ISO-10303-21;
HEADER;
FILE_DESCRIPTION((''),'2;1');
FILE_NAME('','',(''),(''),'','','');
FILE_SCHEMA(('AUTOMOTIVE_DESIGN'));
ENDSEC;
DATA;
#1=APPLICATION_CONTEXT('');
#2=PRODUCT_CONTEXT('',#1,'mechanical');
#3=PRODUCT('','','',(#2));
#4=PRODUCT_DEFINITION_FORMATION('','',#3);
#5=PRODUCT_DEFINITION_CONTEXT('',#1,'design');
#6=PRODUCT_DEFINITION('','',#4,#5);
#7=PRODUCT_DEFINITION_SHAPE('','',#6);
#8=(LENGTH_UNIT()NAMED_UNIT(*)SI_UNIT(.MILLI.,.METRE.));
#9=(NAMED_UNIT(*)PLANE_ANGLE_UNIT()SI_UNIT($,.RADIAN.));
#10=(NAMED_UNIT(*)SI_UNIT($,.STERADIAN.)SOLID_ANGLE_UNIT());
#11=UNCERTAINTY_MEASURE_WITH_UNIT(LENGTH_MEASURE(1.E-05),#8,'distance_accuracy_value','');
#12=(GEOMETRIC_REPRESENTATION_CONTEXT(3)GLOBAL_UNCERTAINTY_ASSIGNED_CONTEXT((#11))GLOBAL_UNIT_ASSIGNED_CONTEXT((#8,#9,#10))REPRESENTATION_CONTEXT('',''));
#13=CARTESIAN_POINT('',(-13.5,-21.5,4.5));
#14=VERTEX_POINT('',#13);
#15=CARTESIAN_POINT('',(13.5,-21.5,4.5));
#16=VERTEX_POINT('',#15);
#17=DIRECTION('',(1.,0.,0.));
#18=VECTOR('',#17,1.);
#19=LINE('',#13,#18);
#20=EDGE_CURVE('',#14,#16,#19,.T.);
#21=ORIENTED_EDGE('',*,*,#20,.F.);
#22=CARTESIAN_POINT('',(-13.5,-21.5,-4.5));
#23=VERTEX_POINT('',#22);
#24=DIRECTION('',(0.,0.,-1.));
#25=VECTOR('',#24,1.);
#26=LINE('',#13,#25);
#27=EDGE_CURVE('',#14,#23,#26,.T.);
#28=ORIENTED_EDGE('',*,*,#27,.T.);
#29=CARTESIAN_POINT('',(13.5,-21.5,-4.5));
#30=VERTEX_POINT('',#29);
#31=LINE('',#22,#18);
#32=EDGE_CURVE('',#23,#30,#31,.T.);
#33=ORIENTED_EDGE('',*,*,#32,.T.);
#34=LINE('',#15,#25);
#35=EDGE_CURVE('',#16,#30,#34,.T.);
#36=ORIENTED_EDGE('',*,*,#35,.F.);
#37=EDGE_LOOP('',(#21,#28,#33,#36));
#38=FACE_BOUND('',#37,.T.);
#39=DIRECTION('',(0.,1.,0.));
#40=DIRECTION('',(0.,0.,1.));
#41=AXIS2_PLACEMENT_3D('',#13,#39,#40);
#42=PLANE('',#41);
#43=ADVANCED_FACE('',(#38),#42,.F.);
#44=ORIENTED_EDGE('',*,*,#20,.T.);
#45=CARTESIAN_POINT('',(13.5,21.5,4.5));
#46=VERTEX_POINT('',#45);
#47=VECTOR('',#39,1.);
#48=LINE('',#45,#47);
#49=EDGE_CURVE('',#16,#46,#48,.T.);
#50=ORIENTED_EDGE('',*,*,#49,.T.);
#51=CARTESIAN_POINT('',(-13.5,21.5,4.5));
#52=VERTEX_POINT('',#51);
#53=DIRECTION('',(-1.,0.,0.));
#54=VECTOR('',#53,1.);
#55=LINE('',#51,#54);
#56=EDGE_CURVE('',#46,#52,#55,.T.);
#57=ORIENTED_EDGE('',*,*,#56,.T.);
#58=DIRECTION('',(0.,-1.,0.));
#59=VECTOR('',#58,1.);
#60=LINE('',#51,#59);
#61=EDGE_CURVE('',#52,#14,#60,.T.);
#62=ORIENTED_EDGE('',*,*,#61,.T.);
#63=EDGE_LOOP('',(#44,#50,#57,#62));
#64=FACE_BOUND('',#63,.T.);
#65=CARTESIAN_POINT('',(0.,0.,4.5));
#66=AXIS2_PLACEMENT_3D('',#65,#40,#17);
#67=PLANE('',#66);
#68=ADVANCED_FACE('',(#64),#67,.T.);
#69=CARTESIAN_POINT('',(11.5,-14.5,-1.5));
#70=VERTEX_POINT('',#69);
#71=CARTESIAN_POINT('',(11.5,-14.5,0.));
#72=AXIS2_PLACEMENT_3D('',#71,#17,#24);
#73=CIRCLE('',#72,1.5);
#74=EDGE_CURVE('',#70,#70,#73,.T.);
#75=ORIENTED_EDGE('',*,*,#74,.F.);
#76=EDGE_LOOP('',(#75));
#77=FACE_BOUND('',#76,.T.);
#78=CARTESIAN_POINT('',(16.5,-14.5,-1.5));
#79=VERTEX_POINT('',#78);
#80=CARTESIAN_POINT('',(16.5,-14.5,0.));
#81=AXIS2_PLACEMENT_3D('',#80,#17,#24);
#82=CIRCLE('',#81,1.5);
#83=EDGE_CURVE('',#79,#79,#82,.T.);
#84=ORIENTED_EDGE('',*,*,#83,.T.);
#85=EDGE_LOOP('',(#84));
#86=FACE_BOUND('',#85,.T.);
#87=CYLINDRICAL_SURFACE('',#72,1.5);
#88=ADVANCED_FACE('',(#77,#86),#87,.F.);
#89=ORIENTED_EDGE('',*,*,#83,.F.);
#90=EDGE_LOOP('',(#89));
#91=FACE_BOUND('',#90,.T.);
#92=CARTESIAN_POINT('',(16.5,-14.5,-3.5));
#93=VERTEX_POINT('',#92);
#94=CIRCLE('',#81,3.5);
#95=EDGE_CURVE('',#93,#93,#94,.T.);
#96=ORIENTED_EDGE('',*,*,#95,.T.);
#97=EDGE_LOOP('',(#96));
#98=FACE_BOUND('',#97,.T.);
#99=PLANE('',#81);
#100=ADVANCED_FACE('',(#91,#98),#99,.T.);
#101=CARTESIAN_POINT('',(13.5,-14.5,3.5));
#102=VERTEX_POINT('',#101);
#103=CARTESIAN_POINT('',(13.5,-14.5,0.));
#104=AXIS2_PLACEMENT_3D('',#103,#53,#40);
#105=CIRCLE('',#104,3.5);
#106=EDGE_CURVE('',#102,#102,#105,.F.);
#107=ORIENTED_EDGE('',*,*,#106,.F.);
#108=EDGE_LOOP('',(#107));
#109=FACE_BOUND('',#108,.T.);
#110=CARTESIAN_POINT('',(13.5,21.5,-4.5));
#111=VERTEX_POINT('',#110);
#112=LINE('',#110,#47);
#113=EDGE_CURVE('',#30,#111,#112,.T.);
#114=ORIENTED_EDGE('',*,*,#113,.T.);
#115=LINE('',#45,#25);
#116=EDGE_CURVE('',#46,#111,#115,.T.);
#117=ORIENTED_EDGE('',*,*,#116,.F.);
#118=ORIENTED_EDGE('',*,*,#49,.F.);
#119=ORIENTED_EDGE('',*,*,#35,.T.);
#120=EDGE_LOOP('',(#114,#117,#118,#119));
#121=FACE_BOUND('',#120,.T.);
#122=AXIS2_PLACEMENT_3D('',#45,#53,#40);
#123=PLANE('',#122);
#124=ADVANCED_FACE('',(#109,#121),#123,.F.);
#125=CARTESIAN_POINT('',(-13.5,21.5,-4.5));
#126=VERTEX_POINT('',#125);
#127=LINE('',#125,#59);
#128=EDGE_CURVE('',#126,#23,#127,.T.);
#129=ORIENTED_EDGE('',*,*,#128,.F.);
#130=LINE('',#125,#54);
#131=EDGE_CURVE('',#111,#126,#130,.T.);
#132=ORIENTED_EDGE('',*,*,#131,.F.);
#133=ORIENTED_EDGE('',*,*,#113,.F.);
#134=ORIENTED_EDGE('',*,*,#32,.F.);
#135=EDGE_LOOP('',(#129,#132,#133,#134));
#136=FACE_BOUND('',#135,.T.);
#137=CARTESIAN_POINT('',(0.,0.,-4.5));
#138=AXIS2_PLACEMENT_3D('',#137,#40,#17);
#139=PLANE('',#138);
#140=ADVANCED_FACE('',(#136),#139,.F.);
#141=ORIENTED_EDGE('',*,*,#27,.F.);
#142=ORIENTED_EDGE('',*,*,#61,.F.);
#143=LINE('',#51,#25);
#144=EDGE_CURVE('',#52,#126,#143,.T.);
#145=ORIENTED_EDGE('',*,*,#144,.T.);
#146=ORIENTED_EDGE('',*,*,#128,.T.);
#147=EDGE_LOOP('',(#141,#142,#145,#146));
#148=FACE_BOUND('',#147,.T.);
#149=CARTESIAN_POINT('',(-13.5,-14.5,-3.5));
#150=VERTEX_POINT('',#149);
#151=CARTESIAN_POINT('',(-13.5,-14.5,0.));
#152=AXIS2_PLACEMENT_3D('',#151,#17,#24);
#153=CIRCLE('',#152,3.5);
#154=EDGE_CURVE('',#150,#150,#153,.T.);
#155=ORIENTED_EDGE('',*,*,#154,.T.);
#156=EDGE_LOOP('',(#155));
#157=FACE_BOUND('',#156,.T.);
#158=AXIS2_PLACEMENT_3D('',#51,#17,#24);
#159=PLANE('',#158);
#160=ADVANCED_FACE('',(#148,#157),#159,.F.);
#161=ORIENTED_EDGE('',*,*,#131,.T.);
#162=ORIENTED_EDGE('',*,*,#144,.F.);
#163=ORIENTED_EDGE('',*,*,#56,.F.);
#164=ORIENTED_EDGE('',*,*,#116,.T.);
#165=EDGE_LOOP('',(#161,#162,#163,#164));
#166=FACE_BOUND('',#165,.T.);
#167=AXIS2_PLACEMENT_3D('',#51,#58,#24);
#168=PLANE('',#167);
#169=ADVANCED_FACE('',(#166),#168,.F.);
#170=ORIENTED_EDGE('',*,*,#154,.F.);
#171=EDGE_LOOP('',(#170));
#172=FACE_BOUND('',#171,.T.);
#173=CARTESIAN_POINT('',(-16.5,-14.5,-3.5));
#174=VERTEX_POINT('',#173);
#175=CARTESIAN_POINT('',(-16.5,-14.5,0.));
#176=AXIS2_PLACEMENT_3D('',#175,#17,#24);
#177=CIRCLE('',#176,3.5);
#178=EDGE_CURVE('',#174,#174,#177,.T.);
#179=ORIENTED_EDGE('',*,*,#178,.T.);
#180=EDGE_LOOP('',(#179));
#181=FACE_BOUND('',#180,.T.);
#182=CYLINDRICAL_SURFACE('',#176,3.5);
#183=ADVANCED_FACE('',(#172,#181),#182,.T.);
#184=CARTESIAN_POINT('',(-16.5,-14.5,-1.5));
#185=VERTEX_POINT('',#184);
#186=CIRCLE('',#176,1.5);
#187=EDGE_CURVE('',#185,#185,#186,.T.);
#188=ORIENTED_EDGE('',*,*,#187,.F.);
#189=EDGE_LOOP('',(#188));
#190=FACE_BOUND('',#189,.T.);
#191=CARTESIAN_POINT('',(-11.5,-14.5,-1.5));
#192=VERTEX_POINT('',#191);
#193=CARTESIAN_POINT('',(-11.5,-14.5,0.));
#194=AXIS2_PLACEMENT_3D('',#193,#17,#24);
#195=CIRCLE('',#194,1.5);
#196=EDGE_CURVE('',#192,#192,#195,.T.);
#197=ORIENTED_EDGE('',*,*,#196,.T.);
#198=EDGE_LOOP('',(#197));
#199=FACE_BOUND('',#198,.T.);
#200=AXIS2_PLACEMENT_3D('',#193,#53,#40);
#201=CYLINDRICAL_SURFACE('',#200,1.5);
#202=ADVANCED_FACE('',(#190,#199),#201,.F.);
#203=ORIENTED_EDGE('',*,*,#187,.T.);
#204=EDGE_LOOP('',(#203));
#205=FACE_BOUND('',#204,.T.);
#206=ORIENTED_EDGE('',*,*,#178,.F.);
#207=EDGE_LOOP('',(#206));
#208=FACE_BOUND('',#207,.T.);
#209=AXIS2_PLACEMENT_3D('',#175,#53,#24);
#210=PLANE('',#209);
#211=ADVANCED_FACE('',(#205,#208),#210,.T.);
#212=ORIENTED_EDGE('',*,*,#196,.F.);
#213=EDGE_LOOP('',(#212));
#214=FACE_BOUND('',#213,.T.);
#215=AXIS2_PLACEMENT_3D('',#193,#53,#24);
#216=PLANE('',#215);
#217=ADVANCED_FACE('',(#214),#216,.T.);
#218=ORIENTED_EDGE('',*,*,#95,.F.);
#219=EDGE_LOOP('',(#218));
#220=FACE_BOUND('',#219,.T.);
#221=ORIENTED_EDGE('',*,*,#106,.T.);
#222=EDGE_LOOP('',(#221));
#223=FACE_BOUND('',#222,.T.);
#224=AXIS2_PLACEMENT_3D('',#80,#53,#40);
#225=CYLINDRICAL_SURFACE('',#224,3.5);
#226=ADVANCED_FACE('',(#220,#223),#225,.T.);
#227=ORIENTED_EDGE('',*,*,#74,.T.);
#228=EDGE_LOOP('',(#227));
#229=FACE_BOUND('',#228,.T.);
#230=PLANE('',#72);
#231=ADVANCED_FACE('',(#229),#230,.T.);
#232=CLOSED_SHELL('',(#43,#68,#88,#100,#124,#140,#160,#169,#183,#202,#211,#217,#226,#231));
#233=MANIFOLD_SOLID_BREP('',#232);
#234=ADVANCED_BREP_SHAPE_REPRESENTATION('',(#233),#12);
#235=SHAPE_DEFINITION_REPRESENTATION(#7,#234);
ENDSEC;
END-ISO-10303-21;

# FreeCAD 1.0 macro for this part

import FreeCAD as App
import Part
import Sketcher
Q = App.Units.Quantity

doc = App.newDocument("Part")
body = doc.addObject("PartDesign::Body", "Body")

# Sketch on XY plane
sketch1 = body.newObject("Sketcher::SketchObject", "Sketch")
sketch1.AttachmentSupport = (doc.getObject("XY_Plane"), [""])
sketch1.MapMode = "FlatFace"
sketch1.addGeometry([
    Part.LineSegment(App.Vector(-13.5, 21.5, 0), App.Vector(-13.5, -21.5, 0)),
    Part.LineSegment(App.Vector(-13.5, -21.5, 0), App.Vector(13.5, -21.5, 0)),
    Part.LineSegment(App.Vector(13.5, -21.5, 0), App.Vector(13.5, 21.5, 0)),
    Part.LineSegment(App.Vector(13.5, 21.5, 0), App.Vector(-13.5, 21.5, 0)),
], False)
sketch1.addConstraint([
    Sketcher.Constraint("Coincident", 0, 2, 1, 1),
    Sketcher.Constraint("Coincident", 1, 2, 2, 1),
    Sketcher.Constraint("Coincident", 2, 2, 3, 1),
    Sketcher.Constraint("Coincident", 3, 2, 0, 1),
    Sketcher.Constraint("Vertical", 0),
    Sketcher.Constraint("Horizontal", 1),
    Sketcher.Constraint("Vertical", 2),
    Sketcher.Constraint("Horizontal", 3),
    Sketcher.Constraint("Symmetric", 0, 2, 2, 2, -1, 1),
    Sketcher.Constraint("DistanceX", 1, 1, 1, 2, Q("27 mm")),
    Sketcher.Constraint("DistanceY", 0, 2, 0, 1, Q("43 mm")),
])
pad1 = body.newObject("PartDesign::Pad", "Pad")
pad1.Profile = sketch1
pad1.Length = 9
pad1.Midplane = True

# Sketch on YZ plane
sketch2 = body.newObject("Sketcher::SketchObject", "Sketch001")
sketch2.AttachmentSupport = (doc.getObject("YZ_Plane"), [""])
sketch2.MapMode = "FlatFace"
sketch2.AttachmentOffset = App.Placement(App.Vector(0, 0, 13.5), App.Rotation())
sketch2.addGeometry(Part.Circle(App.Vector(-14.5, 0, 0), App.Vector(0, 0, 1), 3.5), False)
sketch2.addConstraint([
    Sketcher.Constraint("PointOnObject", 0, 3, -1),
    Sketcher.Constraint("Diameter", 0, Q("7 mm")),
    Sketcher.Constraint("DistanceX", 0, 3, -1, 1, Q("14.5 mm")),
])
pad2 = body.newObject("PartDesign::Pad", "Pad001")
pad2.Profile = sketch2
pad2.Length = 3

# Sketch on YZ plane
sketch3 = body.newObject("Sketcher::SketchObject", "Sketch002")
sketch3.AttachmentSupport = (doc.getObject("YZ_Plane"), [""])
sketch3.MapMode = "FlatFace"
sketch3.AttachmentOffset = App.Placement(App.Vector(0, 0, 16.5), App.Rotation())
sketch3.addGeometry(Part.Circle(App.Vector(-14.5, 0, 0), App.Vector(0, 0, 1), 1.5), False)
sketch3.addConstraint([
    Sketcher.Constraint("PointOnObject", 0, 3, -1),
    Sketcher.Constraint("Diameter", 0, Q("3 mm")),
    Sketcher.Constraint("DistanceX", 0, 3, -1, 1, Q("14.5 mm")),
])
pocket1 = body.newObject("PartDesign::Pocket", "Pocket")
pocket1.Profile = sketch3
pocket1.Length = 5
doc.recompute()

mirrored = body.newObject("PartDesign::Mirrored", "Mirrored")
mirrored.Originals = [pad2, pocket1]
mirrored.MirrorPlane = (doc.getObject("YZ_Plane"), [""])
body.Tip = mirrored

doc.recompute()
